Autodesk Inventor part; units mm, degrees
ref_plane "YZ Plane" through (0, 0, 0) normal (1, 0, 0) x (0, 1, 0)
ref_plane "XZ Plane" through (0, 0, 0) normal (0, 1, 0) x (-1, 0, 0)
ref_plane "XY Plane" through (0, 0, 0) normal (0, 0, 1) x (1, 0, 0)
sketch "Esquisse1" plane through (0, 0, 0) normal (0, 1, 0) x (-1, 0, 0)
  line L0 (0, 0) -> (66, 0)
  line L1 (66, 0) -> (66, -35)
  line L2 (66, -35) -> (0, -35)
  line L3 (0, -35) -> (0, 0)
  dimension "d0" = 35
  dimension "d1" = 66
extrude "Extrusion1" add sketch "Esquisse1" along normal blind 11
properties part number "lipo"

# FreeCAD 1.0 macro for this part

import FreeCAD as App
import Part
import Sketcher
Q = App.Units.Quantity


def add_polygon(sketch, points):
    """Adds a closed chain of lines whose ends are joined by coincident constraints."""
    first, n = sketch.GeometryCount, len(points)
    for a, b in zip(points, points[1:] + points[:1]):
        sketch.addGeometry(Part.LineSegment(App.Vector(*a, 0), App.Vector(*b, 0)), False)
    for i in range(n):
        sketch.addConstraint(Sketcher.Constraint("Coincident", first + i, 2, first + (i + 1) % n, 1))

doc = App.newDocument("Part")
params = doc.addObject("Spreadsheet::Sheet", "Params")
for row, (alias, value) in enumerate([
    ("sketch1_width", "66 mm"),
    ("sketch1_height", "35 mm"),
    ("pad1_length", "11 mm"),
], start=1):
    params.set(f"A{row}", alias)
    params.set(f"B{row}", "=" + value)
    params.setAlias(f"B{row}", alias)

body = doc.addObject("PartDesign::Body", "Body")

# Sketch on XZ plane
sketch1 = body.newObject("Sketcher::SketchObject", "Sketch")
sketch1.AttachmentSupport = (doc.getObject("XZ_Plane"), [""])
sketch1.MapMode = "FlatFace"
add_polygon(sketch1, [(-66, 0), (0, 0), (0, -35), (-66, -35)])  # lines 0-3
sketch1.addConstraint([
    Sketcher.Constraint("Horizontal", 0),
    Sketcher.Constraint("Vertical", 1),
    Sketcher.Constraint("Horizontal", 2),
    Sketcher.Constraint("Vertical", 3),
    Sketcher.Constraint("Coincident", 0, 2, -1, 1),
    Sketcher.Constraint("DistanceX", 0, 1, 0, 2, Q("66 mm")),
    Sketcher.Constraint("DistanceY", 1, 2, 1, 1, Q("35 mm")),
])
sketch1.setExpression("Constraints[9]", "Params.sketch1_width")
sketch1.setExpression("Constraints[10]", "Params.sketch1_height")
pad1 = body.newObject("PartDesign::Pad", "Pad")
pad1.Profile = sketch1
pad1.setExpression("Length", "Params.pad1_length")
pad1.Reversed = True

doc.recompute()
